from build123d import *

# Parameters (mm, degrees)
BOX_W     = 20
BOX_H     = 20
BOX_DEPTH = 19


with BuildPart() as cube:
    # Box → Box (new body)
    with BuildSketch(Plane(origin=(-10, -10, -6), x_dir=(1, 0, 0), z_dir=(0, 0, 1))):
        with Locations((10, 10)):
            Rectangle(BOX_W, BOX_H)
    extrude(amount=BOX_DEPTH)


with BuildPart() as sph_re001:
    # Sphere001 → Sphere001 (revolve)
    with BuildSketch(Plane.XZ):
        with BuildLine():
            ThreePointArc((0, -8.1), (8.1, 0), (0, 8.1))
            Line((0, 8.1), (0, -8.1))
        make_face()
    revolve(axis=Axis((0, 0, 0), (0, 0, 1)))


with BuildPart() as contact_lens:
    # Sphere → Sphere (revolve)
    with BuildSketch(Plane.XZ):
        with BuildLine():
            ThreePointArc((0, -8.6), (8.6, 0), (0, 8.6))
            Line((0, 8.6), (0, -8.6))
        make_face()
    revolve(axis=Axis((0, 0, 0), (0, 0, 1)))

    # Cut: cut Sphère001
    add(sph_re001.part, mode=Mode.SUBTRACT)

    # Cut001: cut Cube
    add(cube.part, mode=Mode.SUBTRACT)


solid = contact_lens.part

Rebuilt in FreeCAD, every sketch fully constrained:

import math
import FreeCAD as App
import Part
import Sketcher
Q = App.Units.Quantity

doc = App.newDocument("Part")
body = doc.addObject("PartDesign::Body", "Body")

sketch1 = body.newObject("Sketcher::SketchObject", "Sketch")
sketch1.AttachmentSupport = (doc.getObject("XY_Plane"), [""])
sketch1.MapMode = "FlatFace"
sketch1.AttachmentOffset = App.Placement(App.Vector(0, 0, -6), App.Rotation())
sketch1.addGeometry([
    Part.LineSegment(App.Vector(-10, 10, 0), App.Vector(-10, -10, 0)),
    Part.LineSegment(App.Vector(-10, -10, 0), App.Vector(10, -10, 0)),
    Part.LineSegment(App.Vector(10, -10, 0), App.Vector(10, 10, 0)),
    Part.LineSegment(App.Vector(10, 10, 0), App.Vector(-10, 10, 0)),
], False)
sketch1.addConstraint([
    Sketcher.Constraint("Coincident", 0, 2, 1, 1),
    Sketcher.Constraint("Coincident", 1, 2, 2, 1),
    Sketcher.Constraint("Coincident", 2, 2, 3, 1),
    Sketcher.Constraint("Coincident", 3, 2, 0, 1),
    Sketcher.Constraint("Vertical", 0),
    Sketcher.Constraint("Horizontal", 1),
    Sketcher.Constraint("Vertical", 2),
    Sketcher.Constraint("Horizontal", 3),
    Sketcher.Constraint("Symmetric", 0, 2, 2, 2, -1, 1),
    Sketcher.Constraint("Equal", 3, 0),
    Sketcher.Constraint("DistanceX", 1, 1, 1, 2, Q("20 mm")),
])
pad1 = body.newObject("PartDesign::Pad", "Pad")
pad1.Profile = sketch1
pad1.Length = 19
body2 = doc.addObject("PartDesign::Body", "Body001")

sketch2 = body2.newObject("Sketcher::SketchObject", "Sketch001")
sketch2.AttachmentSupport = (doc.getObject("XZ_Plane001"), [""])
sketch2.MapMode = "FlatFace"
sketch2.addGeometry([
    Part.ArcOfCircle(Part.Circle(App.Vector(0, 0, 0), App.Vector(0, 0, 1), 8), math.radians(-90), math.radians(90)),
    Part.LineSegment(App.Vector(0, 8, 0), App.Vector(0, -8, 0)),
], False)
sketch2.addConstraint([
    Sketcher.Constraint("Coincident", 0, 1, 1, 2),
    Sketcher.Constraint("Coincident", 1, 1, 0, 2),
    Sketcher.Constraint("Vertical", 1),
    Sketcher.Constraint("Coincident", 0, 3, -1, 1),
    Sketcher.Constraint("PointOnObject", 0, 1, -2),
    Sketcher.Constraint("Radius", 0, Q("8.1 mm")),
])
revolution = body2.newObject("PartDesign::Revolution", "Revolution")
revolution.Profile = sketch2
revolution.ReferenceAxis = (sketch2, ["V_Axis"])
revolution.Angle = 360
body3 = doc.addObject("PartDesign::Body", "Body002")

sketch3 = body3.newObject("Sketcher::SketchObject", "Sketch002")
sketch3.AttachmentSupport = (doc.getObject("XZ_Plane002"), [""])
sketch3.MapMode = "FlatFace"
sketch3.addGeometry([
    Part.ArcOfCircle(Part.Circle(App.Vector(0, 0, 0), App.Vector(0, 0, 1), 9), math.radians(-90), math.radians(90)),
    Part.LineSegment(App.Vector(0, 9, 0), App.Vector(0, -9, 0)),
], False)
sketch3.addConstraint([
    Sketcher.Constraint("Coincident", 0, 1, 1, 2),
    Sketcher.Constraint("Coincident", 1, 1, 0, 2),
    Sketcher.Constraint("Vertical", 1),
    Sketcher.Constraint("Coincident", 0, 3, -1, 1),
    Sketcher.Constraint("PointOnObject", 0, 1, -2),
    Sketcher.Constraint("Radius", 0, Q("8.6 mm")),
])
revolution2 = body3.newObject("PartDesign::Revolution", "Revolution001")
revolution2.Profile = sketch3
revolution2.ReferenceAxis = (sketch3, ["V_Axis"])
revolution2.Angle = 360
doc.recompute()

boolean = body3.newObject("PartDesign::Boolean", "Boolean")
boolean.Type = "Cut"
boolean.addObjects([body2])
doc.recompute()

boolean2 = body3.newObject("PartDesign::Boolean", "Boolean001")
boolean2.Type = "Cut"
boolean2.addObjects([body])

doc.recompute()
